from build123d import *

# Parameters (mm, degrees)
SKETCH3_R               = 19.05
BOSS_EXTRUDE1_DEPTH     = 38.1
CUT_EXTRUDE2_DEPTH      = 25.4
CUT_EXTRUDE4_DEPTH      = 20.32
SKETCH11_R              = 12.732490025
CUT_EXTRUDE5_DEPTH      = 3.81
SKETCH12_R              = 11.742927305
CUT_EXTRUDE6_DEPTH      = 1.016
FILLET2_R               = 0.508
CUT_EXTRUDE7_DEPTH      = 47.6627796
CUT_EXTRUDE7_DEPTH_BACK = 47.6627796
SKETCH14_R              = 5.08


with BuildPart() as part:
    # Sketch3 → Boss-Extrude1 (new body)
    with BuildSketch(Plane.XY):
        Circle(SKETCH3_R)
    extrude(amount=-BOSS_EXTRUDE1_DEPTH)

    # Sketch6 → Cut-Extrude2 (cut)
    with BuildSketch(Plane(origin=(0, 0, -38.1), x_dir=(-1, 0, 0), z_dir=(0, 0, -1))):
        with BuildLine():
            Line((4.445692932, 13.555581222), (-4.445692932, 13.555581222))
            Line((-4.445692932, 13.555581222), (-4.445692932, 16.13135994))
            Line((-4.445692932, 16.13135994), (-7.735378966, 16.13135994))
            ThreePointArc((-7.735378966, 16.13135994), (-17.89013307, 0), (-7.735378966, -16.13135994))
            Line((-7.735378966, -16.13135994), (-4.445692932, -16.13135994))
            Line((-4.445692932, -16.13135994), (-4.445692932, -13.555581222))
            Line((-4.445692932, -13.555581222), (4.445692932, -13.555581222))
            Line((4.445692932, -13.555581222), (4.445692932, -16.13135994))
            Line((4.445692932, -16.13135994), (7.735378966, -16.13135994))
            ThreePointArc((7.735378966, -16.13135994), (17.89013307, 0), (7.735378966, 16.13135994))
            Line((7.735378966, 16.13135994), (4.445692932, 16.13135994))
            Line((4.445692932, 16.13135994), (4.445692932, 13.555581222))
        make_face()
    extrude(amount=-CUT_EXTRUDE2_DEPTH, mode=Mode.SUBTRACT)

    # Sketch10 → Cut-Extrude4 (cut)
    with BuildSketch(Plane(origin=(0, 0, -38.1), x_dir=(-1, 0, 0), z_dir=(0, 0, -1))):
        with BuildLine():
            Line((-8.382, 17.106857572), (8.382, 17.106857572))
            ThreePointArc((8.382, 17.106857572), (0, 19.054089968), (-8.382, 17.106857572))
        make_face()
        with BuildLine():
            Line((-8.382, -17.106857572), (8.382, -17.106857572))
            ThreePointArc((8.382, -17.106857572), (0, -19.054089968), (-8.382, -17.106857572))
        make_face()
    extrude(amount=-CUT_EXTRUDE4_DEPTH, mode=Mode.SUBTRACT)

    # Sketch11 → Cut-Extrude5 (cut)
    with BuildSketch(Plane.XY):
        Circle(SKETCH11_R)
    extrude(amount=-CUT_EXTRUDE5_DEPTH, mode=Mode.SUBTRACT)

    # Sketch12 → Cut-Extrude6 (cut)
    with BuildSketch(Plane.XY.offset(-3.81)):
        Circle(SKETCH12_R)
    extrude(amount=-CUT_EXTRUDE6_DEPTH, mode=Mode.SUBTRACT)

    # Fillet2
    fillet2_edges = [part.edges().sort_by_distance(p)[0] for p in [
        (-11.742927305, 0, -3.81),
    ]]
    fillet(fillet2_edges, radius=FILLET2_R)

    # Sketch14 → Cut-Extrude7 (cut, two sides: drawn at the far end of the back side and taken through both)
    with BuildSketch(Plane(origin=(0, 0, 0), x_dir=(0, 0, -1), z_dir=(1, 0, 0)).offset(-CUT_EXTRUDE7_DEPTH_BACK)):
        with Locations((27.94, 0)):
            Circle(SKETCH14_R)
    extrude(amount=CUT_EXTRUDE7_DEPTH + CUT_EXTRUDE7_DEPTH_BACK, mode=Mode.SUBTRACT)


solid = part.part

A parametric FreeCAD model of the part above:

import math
import FreeCAD as App
import Part
import Sketcher
from FreeCAD import Vector
Q = App.Units.Quantity


def edges_at(feature, points):
    """Names of the edges that pass closest to the given points."""
    edges = feature.Shape.Edges
    near = lambda p: min(range(len(edges)), key=lambda i: edges[i].distToShape(Part.Vertex(*p))[0])
    return sorted({f"Edge{near(p) + 1}" for p in points})

doc = App.newDocument("Part")
body = doc.addObject("PartDesign::Body", "Body")

# Sketch on XY plane
sketch1 = body.newObject("Sketcher::SketchObject", "Sketch")
sketch1.AttachmentSupport = (doc.getObject("XY_Plane"), [""])
sketch1.MapMode = "FlatFace"
sketch1.addGeometry(Part.Circle(Vector(0, 0, 0), Vector(0, 0, 1), 19), False)
sketch1.addConstraint([
    Sketcher.Constraint("Coincident", 0, 3, -1, 1),
    Sketcher.Constraint("Diameter", 0, Q("1.5 in")),
])
pad1 = body.newObject("PartDesign::Pad", "Pad")
pad1.Profile = sketch1
pad1.Length = Q("1.5 in")
pad1.Reversed = True

# Sketch on XY plane
sketch2 = body.newObject("Sketcher::SketchObject", "Sketch001")
sketch2.AttachmentSupport = (doc.getObject("XY_Plane"), [""])
sketch2.MapMode = "FlatFace"
sketch2.AttachmentOffset = App.Placement(Vector(0, 0, -1.5 * 25.4), App.Rotation())
sketch2.addGeometry([
    Part.LineSegment(Vector(-4.4, 13.6, 0), Vector(4.4, 13.6, 0)),  # 0
    Part.LineSegment(Vector(4.4, 13.6, 0), Vector(4.4, 16.1, 0)),  # 1
    Part.LineSegment(Vector(4.4, 16.1, 0), Vector(7.7, 16.1, 0)),  # 2
    Part.ArcOfCircle(Part.Circle(Vector(0, 0, 0), Vector(0, 0, 1), 17.9), math.radians(-64), math.radians(64)),  # 3
    Part.LineSegment(Vector(7.7, -16.1, 0), Vector(4.4, -16.1, 0)),  # 4
    Part.LineSegment(Vector(4.4, -16.1, 0), Vector(4.4, -13.6, 0)),  # 5
    Part.LineSegment(Vector(4.4, -13.6, 0), Vector(-4.4, -13.6, 0)),  # 6
    Part.LineSegment(Vector(-4.4, -13.6, 0), Vector(-4.4, -16.1, 0)),  # 7
    Part.LineSegment(Vector(-4.4, -16.1, 0), Vector(-7.7, -16.1, 0)),  # 8
    Part.ArcOfCircle(Part.Circle(Vector(0, 0, 0), Vector(0, 0, 1), 17.9), math.radians(116), math.radians(244)),  # 9
    Part.LineSegment(Vector(-7.7, 16.1, 0), Vector(-4.4, 16.1, 0)),  # 10
    Part.LineSegment(Vector(-4.4, 16.1, 0), Vector(-4.4, 13.6, 0)),  # 11
], False)
sketch2.addConstraint([
    Sketcher.Constraint("Coincident", 0, 2, 1, 1),
    Sketcher.Constraint("Coincident", 1, 2, 2, 1),
    Sketcher.Constraint("Coincident", 2, 2, 3, 2),
    Sketcher.Constraint("Coincident", 3, 1, 4, 1),
    Sketcher.Constraint("Coincident", 4, 2, 5, 1),
    Sketcher.Constraint("Coincident", 5, 2, 6, 1),
    Sketcher.Constraint("Coincident", 6, 2, 7, 1),
    Sketcher.Constraint("Coincident", 7, 2, 8, 1),
    Sketcher.Constraint("Coincident", 8, 2, 9, 2),
    Sketcher.Constraint("Coincident", 9, 1, 10, 1),
    Sketcher.Constraint("Coincident", 10, 2, 11, 1),
    Sketcher.Constraint("Coincident", 11, 2, 0, 1),
    Sketcher.Constraint("Horizontal", 0),
    Sketcher.Constraint("Vertical", 1),
    Sketcher.Constraint("Horizontal", 2),
    Sketcher.Constraint("Horizontal", 4),
    Sketcher.Constraint("Vertical", 5),
    Sketcher.Constraint("Horizontal", 6),
    Sketcher.Constraint("Vertical", 7),
    Sketcher.Constraint("Horizontal", 8),
    Sketcher.Constraint("Horizontal", 10),
    Sketcher.Constraint("Vertical", 11),
    Sketcher.Constraint("Coincident", 3, 3, -1, 1),
    Sketcher.Constraint("Coincident", 9, 3, -1, 1),
    Sketcher.Constraint("Equal", 3, 9),
    Sketcher.Constraint("Symmetric", 0, 2, 6, 2, -1, 1),
    Sketcher.Constraint("Symmetric", 4, 2, 10, 2, -1, 1),
    Sketcher.Constraint("Symmetric", 4, 2, 7, 2, -2),
    Sketcher.Constraint("Horizontal", 2, 2, 9, 1),
    Sketcher.Constraint("Radius", 3, 17.890133),
    Sketcher.Constraint("DistanceY", 1, 1, 1, 2, 2.575779),
    Sketcher.Constraint("DistanceX", 0, 1, 0, 2, 8.891386),
    Sketcher.Constraint("DistanceX", 2, 1, 2, 2, 3.289686),
])
pocket1 = body.newObject("PartDesign::Pocket", "Pocket")
pocket1.Profile = sketch2
pocket1.Length = Q("1 in")
pocket1.Reversed = True

# Sketch on XY plane
sketch3 = body.newObject("Sketcher::SketchObject", "Sketch002")
sketch3.AttachmentSupport = (doc.getObject("XY_Plane"), [""])
sketch3.MapMode = "FlatFace"
sketch3.AttachmentOffset = App.Placement(Vector(0, 0, -1.5 * 25.4), App.Rotation())
sketch3.addGeometry([
    Part.LineSegment(Vector(8.382, 17.106858, 0), Vector(-8.382, 17.106858, 0)),
    Part.ArcOfCircle(Part.Circle(Vector(0, 0.040017, 0), Vector(0, 0, 1), 19.014073), math.radians(63.843062), math.radians(116.156938)),
    Part.LineSegment(Vector(-8.382, -17.106858, 0), Vector(8.382, -17.106858, 0)),
    Part.ArcOfCircle(Part.Circle(Vector(0, -0.040017, 0), Vector(0, 0, 1), 19.014073), math.radians(-116.156938), math.radians(-63.843062)),
], False)
sketch3.addConstraint([
    Sketcher.Constraint("Coincident", 0, 1, 1, 1),
    Sketcher.Constraint("Coincident", 1, 2, 0, 2),
    Sketcher.Constraint("Coincident", 2, 1, 3, 1),
    Sketcher.Constraint("Coincident", 3, 2, 2, 2),
    Sketcher.Constraint("Horizontal", 0),
    Sketcher.Constraint("Horizontal", 2),
    Sketcher.Constraint("Equal", 1, 3),
    Sketcher.Constraint("Symmetric", 1, 3, 3, 3, -1, 1),
    Sketcher.Constraint("Symmetric", 1, 2, 2, 1, -1),
    Sketcher.Constraint("DistanceX", 0, 2, 0, 1, Q("0.66 in")),
    Sketcher.Constraint("Radius", 1, 19.014073),
    Sketcher.Constraint("DistanceY", -1, 1, 1, 3, 0.040017),
])
pocket2 = body.newObject("PartDesign::Pocket", "Pocket001")
pocket2.Profile = sketch3
pocket2.Length = Q("0.8 in")
pocket2.Reversed = True

# Sketch on XY plane
sketch4 = body.newObject("Sketcher::SketchObject", "Sketch003")
sketch4.AttachmentSupport = (doc.getObject("XY_Plane"), [""])
sketch4.MapMode = "FlatFace"
sketch4.addGeometry(Part.Circle(Vector(0, 0, 0), Vector(0, 0, 1), 13), False)
sketch4.addConstraint([
    Sketcher.Constraint("Coincident", 0, 3, -1, 1),
    Sketcher.Constraint("Diameter", 0, 25.46498),
])
pocket3 = body.newObject("PartDesign::Pocket", "Pocket002")
pocket3.Profile = sketch4
pocket3.Length = Q("0.15 in")

# Sketch on XY plane
sketch5 = body.newObject("Sketcher::SketchObject", "Sketch004")
sketch5.AttachmentSupport = (doc.getObject("XY_Plane"), [""])
sketch5.MapMode = "FlatFace"
sketch5.AttachmentOffset = App.Placement(Vector(0, 0, -0.15 * 25.4), App.Rotation())
sketch5.addGeometry(Part.Circle(Vector(0, 0, 0), Vector(0, 0, 1), 12), False)
sketch5.addConstraint([
    Sketcher.Constraint("Coincident", 0, 3, -1, 1),
    Sketcher.Constraint("Diameter", 0, 23.485855),
])
pocket4 = body.newObject("PartDesign::Pocket", "Pocket003")
pocket4.Profile = sketch5
pocket4.Length = Q("0.04 in")
doc.recompute()

fillet = body.newObject("PartDesign::Fillet", "Fillet")
fillet.Base = (pocket4, edges_at(pocket4, [(-11.743, 0, -3.81)]))
fillet.Radius = Q("0.02 in")

# Sketch on YZ plane
sketch6 = body.newObject("Sketcher::SketchObject", "Sketch005")
sketch6.AttachmentSupport = (doc.getObject("YZ_Plane"), [""])
sketch6.MapMode = "FlatFace"
sketch6.addGeometry(Part.Circle(Vector(0, -28, 0), Vector(0, 0, 1), 5), False)
sketch6.addConstraint([
    Sketcher.Constraint("PointOnObject", 0, 3, -2),
    Sketcher.Constraint("Diameter", 0, Q("0.4 in")),
    Sketcher.Constraint("DistanceY", 0, 3, -1, 1, Q("1.1 in")),
])
pocket5 = body.newObject("PartDesign::Pocket", "Pocket004")
pocket5.Profile = sketch6
pocket5.Type = "ThroughAll"
pocket5.Midplane = True

doc.recompute()
